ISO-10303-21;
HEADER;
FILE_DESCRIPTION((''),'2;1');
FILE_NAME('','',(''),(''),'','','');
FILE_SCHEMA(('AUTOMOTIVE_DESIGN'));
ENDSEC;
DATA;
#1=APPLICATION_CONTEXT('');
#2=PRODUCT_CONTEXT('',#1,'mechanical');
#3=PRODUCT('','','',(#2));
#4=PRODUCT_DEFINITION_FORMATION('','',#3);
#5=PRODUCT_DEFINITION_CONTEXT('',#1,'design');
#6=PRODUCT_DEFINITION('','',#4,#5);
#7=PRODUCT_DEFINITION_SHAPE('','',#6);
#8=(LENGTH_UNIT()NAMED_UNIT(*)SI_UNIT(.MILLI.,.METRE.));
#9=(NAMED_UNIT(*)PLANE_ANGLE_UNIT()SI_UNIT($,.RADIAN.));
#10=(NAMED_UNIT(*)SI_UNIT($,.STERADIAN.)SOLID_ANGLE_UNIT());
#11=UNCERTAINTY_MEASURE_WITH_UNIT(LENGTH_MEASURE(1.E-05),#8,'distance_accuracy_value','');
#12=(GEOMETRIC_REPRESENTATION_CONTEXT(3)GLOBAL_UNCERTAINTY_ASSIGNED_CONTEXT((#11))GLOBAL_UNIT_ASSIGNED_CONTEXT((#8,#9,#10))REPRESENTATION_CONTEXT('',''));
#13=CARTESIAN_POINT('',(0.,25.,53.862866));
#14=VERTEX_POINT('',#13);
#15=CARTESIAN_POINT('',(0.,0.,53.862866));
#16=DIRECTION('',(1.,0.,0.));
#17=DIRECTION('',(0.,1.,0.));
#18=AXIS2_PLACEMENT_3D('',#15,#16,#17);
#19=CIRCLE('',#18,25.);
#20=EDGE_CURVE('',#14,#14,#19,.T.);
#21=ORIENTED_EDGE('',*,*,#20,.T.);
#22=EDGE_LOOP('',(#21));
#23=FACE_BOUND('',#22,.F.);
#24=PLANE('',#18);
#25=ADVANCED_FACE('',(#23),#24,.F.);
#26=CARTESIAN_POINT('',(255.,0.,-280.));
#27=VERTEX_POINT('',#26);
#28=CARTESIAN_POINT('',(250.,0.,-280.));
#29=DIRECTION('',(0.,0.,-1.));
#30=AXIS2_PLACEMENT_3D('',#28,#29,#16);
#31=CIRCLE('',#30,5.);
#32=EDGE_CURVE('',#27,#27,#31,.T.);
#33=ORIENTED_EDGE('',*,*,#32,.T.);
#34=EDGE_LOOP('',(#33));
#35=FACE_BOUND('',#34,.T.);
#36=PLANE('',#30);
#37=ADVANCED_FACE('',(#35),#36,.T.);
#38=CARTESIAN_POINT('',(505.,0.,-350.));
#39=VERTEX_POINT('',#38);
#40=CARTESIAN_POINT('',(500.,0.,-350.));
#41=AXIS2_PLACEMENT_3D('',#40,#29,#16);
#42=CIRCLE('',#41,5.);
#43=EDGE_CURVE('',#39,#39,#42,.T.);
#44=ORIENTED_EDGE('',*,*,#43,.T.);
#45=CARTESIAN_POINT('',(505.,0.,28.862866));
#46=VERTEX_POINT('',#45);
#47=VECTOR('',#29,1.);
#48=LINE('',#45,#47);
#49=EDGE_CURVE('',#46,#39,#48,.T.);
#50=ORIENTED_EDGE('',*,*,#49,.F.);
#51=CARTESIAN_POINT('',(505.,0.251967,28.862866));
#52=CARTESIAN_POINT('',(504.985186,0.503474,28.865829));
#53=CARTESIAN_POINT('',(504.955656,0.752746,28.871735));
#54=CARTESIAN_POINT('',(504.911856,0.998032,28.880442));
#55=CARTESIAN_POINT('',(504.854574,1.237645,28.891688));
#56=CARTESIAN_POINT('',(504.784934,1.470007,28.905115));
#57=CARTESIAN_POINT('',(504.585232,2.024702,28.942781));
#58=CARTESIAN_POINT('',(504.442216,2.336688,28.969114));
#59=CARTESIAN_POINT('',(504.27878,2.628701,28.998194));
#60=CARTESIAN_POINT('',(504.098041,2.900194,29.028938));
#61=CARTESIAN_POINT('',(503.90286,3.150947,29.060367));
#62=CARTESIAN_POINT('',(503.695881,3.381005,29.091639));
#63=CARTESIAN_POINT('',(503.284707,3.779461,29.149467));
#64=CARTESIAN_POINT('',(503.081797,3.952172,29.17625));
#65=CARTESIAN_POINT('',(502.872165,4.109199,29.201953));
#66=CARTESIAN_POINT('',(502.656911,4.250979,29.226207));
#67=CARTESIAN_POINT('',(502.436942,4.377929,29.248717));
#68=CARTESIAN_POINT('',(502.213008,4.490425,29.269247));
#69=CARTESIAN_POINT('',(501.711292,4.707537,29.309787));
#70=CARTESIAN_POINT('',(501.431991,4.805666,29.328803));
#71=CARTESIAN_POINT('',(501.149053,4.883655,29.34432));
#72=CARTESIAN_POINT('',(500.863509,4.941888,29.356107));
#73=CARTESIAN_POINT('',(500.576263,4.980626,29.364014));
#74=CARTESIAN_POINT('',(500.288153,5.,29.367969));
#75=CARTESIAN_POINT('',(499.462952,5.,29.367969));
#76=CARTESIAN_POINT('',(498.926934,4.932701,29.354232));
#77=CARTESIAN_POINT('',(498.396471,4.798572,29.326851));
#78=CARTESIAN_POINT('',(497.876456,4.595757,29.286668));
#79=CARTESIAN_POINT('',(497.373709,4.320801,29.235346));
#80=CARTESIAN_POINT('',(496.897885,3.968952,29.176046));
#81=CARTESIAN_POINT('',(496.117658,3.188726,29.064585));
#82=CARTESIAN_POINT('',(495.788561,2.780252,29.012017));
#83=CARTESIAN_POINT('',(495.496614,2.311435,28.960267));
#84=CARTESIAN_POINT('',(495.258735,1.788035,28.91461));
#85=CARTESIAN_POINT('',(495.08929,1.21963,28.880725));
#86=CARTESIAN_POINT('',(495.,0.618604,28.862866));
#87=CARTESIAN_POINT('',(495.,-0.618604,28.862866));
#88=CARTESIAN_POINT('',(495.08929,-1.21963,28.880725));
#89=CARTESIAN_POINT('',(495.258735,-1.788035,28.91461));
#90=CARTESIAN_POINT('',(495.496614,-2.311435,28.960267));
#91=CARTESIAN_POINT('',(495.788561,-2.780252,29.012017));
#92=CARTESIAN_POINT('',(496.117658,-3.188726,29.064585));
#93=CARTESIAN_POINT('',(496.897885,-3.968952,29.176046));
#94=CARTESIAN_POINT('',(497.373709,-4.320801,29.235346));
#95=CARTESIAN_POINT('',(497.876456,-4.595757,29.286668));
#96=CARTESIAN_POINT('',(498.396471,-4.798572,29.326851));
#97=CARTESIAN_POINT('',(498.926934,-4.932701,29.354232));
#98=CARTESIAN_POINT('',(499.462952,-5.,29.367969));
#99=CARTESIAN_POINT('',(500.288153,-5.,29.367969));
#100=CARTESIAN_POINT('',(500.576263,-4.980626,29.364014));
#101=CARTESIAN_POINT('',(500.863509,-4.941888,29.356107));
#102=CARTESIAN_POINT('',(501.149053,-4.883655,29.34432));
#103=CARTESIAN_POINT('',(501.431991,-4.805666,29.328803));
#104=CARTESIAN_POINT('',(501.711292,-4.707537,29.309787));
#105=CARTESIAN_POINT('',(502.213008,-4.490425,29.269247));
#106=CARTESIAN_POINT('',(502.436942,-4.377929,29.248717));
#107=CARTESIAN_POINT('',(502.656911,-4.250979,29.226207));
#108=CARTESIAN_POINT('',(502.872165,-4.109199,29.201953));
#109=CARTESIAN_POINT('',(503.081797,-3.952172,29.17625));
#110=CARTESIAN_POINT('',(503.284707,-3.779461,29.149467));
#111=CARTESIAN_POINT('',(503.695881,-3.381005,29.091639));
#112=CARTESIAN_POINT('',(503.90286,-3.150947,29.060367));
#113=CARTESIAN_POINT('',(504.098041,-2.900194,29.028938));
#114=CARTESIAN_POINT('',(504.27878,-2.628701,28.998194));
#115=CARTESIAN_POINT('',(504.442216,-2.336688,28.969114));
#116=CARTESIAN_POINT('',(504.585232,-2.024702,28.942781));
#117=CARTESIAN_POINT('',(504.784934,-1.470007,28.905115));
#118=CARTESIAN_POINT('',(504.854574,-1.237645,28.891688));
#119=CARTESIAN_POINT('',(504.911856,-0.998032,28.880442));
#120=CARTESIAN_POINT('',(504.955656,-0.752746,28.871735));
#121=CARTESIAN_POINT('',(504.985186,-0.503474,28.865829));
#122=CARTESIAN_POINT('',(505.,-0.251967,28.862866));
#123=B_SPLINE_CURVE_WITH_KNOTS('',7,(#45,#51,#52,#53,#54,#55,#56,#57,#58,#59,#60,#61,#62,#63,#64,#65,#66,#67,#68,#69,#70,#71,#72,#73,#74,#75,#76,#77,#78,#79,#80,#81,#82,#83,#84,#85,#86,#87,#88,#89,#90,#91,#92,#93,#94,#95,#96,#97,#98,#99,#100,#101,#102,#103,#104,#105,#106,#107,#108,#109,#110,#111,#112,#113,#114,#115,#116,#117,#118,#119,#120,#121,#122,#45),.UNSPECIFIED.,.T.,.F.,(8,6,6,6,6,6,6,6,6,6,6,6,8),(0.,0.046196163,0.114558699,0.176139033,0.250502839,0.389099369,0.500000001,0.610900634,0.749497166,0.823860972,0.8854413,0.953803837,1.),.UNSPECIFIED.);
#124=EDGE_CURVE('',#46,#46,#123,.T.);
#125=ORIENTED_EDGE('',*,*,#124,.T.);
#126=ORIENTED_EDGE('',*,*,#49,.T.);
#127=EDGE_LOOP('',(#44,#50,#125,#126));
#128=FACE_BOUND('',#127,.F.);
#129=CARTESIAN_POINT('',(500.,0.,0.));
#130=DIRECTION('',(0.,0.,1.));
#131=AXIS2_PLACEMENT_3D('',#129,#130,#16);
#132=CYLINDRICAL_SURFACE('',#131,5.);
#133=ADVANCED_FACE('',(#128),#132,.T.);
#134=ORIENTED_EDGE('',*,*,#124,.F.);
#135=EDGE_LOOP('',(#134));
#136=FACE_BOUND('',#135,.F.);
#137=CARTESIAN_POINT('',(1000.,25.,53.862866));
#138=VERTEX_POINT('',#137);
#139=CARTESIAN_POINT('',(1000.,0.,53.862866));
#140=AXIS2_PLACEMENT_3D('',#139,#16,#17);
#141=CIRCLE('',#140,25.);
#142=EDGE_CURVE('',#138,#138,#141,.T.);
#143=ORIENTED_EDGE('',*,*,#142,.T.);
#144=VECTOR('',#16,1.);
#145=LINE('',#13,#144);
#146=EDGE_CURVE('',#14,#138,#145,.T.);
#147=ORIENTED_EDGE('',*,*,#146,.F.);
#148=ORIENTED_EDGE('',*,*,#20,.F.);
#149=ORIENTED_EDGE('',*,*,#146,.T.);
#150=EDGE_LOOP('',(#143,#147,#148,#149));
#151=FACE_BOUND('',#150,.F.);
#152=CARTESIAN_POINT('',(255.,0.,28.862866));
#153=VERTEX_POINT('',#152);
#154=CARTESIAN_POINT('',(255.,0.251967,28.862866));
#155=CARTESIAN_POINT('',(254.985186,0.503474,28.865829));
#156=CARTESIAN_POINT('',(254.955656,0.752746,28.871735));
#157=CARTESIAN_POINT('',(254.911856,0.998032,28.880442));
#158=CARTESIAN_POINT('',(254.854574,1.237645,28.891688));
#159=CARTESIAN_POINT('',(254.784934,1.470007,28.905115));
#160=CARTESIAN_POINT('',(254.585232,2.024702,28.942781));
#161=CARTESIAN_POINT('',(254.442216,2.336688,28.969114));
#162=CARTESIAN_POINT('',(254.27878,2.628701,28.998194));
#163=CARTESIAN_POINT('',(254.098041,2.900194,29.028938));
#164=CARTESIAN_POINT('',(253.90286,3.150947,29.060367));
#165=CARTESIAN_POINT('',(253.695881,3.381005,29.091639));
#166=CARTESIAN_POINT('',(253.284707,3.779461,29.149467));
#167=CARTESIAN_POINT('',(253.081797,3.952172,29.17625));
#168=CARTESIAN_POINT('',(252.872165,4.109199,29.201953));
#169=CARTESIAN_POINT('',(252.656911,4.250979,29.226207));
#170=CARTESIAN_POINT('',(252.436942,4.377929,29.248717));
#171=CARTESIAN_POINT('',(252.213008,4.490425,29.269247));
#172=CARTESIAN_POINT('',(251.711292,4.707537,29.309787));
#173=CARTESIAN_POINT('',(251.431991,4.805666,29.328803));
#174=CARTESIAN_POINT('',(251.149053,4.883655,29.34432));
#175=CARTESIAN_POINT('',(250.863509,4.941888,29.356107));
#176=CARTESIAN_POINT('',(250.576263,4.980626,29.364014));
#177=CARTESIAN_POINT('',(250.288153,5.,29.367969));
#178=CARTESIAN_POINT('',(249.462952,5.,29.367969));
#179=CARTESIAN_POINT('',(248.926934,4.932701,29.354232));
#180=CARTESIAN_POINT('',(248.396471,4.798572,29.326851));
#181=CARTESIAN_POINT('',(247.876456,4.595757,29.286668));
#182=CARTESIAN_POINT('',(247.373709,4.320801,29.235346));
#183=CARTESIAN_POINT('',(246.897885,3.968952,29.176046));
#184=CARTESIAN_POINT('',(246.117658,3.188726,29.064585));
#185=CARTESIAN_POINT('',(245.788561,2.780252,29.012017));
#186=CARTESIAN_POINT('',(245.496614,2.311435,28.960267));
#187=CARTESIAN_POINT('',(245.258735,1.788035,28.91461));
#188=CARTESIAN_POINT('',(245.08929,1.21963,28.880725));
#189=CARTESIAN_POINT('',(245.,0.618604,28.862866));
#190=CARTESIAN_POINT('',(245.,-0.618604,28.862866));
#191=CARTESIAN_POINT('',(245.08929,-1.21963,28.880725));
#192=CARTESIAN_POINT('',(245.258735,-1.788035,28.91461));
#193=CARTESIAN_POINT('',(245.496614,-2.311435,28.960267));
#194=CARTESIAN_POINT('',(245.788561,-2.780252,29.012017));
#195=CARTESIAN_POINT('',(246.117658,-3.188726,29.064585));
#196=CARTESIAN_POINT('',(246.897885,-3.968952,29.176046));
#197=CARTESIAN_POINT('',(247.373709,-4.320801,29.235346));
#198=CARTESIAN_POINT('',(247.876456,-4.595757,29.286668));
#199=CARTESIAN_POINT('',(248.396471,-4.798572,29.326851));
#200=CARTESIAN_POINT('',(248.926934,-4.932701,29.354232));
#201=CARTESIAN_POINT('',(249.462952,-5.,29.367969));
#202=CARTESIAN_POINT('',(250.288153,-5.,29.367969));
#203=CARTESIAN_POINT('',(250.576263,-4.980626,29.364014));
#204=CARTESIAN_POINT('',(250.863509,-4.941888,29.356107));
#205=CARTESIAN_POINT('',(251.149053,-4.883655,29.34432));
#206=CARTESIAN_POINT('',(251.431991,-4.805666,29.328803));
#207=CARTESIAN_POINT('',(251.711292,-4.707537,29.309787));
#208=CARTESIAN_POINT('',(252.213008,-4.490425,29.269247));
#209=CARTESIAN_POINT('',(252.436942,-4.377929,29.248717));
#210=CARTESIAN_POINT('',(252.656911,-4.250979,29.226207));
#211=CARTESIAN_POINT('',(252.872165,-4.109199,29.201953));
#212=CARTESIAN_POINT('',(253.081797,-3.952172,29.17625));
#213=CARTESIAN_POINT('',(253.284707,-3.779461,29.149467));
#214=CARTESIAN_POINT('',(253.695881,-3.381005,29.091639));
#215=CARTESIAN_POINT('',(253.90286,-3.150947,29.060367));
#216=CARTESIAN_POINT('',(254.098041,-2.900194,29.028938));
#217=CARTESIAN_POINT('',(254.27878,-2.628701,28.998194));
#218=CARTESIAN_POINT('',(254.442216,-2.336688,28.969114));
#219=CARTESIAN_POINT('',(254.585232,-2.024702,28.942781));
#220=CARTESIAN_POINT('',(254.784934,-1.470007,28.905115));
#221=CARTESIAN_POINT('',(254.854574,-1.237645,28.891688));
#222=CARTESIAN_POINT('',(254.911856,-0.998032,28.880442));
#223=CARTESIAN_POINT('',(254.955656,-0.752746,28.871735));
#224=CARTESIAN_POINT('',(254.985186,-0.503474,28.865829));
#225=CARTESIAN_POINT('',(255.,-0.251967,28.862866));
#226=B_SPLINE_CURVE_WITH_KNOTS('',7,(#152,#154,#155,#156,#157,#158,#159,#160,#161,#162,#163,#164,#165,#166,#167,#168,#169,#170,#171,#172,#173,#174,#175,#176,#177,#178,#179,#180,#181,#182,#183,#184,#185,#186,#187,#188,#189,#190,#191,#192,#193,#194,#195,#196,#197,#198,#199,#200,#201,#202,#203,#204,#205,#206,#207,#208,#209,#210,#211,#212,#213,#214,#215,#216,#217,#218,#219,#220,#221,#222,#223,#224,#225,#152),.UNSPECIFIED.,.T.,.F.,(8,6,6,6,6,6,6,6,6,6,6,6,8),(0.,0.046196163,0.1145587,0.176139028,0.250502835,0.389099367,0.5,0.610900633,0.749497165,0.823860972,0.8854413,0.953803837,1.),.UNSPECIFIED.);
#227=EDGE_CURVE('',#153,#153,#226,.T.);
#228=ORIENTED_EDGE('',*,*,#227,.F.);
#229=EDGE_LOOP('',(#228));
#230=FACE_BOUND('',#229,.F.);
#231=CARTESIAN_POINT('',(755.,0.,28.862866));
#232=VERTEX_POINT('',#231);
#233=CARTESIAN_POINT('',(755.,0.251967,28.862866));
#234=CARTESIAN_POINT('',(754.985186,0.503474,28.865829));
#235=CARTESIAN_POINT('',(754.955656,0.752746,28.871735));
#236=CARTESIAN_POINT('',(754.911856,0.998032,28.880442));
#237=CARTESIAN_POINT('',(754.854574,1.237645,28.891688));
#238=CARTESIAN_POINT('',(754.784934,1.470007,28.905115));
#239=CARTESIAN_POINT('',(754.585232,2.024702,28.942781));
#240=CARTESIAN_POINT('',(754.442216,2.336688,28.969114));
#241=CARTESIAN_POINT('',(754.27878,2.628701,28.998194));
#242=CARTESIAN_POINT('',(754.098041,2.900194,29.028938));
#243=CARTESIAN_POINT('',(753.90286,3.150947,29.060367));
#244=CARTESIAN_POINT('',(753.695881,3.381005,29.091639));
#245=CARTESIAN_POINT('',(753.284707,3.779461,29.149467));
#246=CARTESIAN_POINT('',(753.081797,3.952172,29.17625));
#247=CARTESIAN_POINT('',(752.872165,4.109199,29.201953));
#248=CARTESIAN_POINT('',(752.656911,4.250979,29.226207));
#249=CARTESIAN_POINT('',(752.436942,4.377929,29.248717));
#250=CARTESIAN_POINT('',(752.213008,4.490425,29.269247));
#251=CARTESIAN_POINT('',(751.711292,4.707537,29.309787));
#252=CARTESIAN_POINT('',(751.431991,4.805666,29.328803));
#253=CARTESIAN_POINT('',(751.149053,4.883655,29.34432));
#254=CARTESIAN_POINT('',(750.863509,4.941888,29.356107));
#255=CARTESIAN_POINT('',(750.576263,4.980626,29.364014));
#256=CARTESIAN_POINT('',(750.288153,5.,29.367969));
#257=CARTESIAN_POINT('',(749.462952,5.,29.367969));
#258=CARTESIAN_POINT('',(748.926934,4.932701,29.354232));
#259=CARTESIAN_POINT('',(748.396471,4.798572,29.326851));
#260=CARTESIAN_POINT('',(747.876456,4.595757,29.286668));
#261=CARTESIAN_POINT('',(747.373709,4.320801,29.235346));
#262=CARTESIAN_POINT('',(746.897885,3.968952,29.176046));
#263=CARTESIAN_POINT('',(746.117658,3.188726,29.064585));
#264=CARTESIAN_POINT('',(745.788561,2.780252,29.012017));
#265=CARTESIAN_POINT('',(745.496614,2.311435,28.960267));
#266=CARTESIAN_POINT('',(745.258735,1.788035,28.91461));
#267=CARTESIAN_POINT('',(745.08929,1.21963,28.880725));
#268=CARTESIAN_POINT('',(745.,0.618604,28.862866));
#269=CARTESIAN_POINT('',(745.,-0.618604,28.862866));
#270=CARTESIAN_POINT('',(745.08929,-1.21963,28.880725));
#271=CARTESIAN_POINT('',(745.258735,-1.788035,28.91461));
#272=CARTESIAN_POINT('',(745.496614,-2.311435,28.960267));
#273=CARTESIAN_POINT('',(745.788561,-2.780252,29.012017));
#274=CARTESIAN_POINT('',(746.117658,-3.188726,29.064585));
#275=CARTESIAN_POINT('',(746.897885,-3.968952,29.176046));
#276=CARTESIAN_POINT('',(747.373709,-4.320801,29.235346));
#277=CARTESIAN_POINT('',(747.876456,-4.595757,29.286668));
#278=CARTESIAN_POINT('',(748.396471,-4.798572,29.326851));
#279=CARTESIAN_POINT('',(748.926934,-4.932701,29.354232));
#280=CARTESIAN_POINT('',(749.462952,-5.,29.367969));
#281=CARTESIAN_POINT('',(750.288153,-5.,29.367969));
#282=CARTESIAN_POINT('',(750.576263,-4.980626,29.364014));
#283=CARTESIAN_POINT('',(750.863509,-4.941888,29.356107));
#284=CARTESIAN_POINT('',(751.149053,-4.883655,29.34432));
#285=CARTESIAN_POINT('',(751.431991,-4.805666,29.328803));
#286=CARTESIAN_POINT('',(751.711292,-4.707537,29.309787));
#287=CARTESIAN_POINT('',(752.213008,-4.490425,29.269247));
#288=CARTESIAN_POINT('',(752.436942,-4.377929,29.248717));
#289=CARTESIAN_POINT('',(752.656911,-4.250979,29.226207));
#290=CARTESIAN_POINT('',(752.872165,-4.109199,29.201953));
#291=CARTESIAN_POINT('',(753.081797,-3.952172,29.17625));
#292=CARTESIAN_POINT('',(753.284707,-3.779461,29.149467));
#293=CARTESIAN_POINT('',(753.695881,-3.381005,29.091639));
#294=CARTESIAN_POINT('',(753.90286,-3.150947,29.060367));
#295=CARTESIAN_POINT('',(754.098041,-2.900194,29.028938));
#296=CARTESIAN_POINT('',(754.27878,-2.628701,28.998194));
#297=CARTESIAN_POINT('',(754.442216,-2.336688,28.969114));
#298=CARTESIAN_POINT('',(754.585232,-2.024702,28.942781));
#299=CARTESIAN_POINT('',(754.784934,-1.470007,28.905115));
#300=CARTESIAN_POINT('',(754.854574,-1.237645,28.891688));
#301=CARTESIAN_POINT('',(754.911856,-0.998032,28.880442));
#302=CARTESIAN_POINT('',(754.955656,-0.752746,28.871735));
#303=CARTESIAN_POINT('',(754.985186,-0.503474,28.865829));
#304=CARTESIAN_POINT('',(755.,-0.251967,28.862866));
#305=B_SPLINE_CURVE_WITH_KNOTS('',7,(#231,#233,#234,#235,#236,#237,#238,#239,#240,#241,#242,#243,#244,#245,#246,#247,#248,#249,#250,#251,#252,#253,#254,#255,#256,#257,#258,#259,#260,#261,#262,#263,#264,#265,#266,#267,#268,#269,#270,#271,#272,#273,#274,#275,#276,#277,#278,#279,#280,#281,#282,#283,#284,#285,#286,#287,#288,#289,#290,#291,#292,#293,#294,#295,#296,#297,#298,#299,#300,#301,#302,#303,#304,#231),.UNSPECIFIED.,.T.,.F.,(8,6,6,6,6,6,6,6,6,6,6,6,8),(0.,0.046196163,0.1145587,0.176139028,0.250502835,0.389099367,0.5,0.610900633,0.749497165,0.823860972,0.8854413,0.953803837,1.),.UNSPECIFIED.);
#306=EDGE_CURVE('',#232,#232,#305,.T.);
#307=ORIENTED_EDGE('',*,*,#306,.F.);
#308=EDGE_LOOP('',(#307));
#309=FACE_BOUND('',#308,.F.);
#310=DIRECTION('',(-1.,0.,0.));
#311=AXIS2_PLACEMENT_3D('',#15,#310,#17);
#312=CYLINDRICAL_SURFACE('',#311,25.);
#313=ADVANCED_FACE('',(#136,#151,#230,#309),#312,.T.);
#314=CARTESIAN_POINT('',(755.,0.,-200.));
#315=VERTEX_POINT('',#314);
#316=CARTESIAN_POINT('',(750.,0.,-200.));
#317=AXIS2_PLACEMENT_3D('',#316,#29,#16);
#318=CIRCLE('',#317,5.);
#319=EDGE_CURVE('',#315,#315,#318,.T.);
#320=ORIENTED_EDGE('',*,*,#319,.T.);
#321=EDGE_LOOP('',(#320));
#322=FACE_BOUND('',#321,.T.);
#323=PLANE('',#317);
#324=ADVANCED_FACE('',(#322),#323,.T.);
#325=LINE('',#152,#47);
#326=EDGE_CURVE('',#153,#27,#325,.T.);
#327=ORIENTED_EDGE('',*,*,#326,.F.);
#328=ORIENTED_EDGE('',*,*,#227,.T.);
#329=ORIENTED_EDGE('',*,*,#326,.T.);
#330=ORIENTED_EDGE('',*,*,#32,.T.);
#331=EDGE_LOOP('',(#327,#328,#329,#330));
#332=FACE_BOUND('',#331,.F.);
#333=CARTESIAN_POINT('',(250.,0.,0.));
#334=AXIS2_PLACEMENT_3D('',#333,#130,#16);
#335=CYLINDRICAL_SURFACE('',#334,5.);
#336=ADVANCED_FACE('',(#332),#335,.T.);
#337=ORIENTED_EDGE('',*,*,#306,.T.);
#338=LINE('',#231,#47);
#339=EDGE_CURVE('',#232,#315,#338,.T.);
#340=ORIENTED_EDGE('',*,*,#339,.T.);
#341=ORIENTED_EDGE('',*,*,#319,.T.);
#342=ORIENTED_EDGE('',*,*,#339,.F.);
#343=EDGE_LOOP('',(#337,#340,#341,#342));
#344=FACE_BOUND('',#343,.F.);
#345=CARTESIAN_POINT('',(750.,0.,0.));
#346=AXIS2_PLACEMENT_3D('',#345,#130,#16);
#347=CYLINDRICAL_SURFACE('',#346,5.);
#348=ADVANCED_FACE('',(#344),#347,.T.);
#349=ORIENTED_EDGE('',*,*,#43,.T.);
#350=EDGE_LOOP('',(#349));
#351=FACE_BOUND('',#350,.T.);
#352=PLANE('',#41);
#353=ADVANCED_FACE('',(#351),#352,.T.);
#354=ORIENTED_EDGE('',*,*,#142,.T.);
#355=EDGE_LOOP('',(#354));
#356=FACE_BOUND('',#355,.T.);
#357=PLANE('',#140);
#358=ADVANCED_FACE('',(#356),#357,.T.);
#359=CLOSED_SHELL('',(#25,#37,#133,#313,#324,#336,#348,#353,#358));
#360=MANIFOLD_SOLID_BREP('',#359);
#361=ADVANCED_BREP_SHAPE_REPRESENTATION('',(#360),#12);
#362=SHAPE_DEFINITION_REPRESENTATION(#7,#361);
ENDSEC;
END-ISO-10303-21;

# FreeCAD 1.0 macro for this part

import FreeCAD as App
import Part
import Sketcher
from FreeCAD import Vector

doc = App.newDocument("Part")
body = doc.addObject("PartDesign::Body", "Body")

sketch1 = body.newObject("Sketcher::SketchObject", "Sketch")
sketch1.AttachmentSupport = (doc.getObject("YZ_Plane"), [""])
sketch1.MapMode = "FlatFace"
sketch1.addGeometry(Part.Circle(Vector(0, 54, 0), Vector(0, 0, 1), 25), False)
sketch1.addConstraint(Sketcher.Constraint("PointOnObject", 0, 3, -2))
sketch1.addConstraint(Sketcher.Constraint("Diameter", 0, 50.0))
sketch1.addConstraint(Sketcher.Constraint("DistanceY", -1, 1, 0, 3, 53.862866))
pad1 = body.newObject("PartDesign::Pad", "Pad")
pad1.Profile = sketch1
pad1.Length = 1000

sketch2 = body.newObject("Sketcher::SketchObject", "Sketch001")
sketch2.AttachmentSupport = (doc.getObject("XY_Plane"), [""])
sketch2.MapMode = "FlatFace"
sketch2.addGeometry(Part.Circle(Vector(500, 0, 0), Vector(0, 0, 1), 5), False)
sketch2.addGeometry(Part.Circle(Vector(250, 0, 0), Vector(0, 0, 1), 5), False)
sketch2.addGeometry(Part.Circle(Vector(750, 0, 0), Vector(0, 0, 1), 5), False)
sketch2.addConstraint(Sketcher.Constraint("Equal", 0, 1))
sketch2.addConstraint(Sketcher.Constraint("Equal", 1, 2))
sketch2.addConstraint(Sketcher.Constraint("PointOnObject", 0, 3, -1))
sketch2.addConstraint(Sketcher.Constraint("PointOnObject", 1, 3, -1))
sketch2.addConstraint(Sketcher.Constraint("PointOnObject", 2, 3, -1))
sketch2.addConstraint(Sketcher.Constraint("Diameter", 0, 10.0))
sketch2.addConstraint(Sketcher.Constraint("DistanceX", -1, 1, 0, 3, 500.0))
sketch2.addConstraint(Sketcher.Constraint("DistanceX", -1, 1, 1, 3, 250.0))
sketch2.addConstraint(Sketcher.Constraint("DistanceX", -1, 1, 2, 3, 750.0))
pad2 = body.newObject("PartDesign::Pad", "Pad001")
pad2.Profile = sketch2
pad2.Length = 50

sketch3 = body.newObject("Sketcher::SketchObject", "Sketch002")
sketch3.AttachmentSupport = (doc.getObject("XY_Plane"), [""])
sketch3.MapMode = "FlatFace"
sketch3.addGeometry(Part.Circle(Vector(750, 0, 0), Vector(0, 0, 1), 5), False)
sketch3.addConstraint(Sketcher.Constraint("PointOnObject", 0, 3, -1))
sketch3.addConstraint(Sketcher.Constraint("Diameter", 0, 10.0))
sketch3.addConstraint(Sketcher.Constraint("DistanceX", -1, 1, 0, 3, 750.0))
pad3 = body.newObject("PartDesign::Pad", "Pad002")
pad3.Profile = sketch3
pad3.Length = 200
pad3.Reversed = True

sketch4 = body.newObject("Sketcher::SketchObject", "Sketch003")
sketch4.AttachmentSupport = (doc.getObject("XY_Plane"), [""])
sketch4.MapMode = "FlatFace"
sketch4.addGeometry(Part.Circle(Vector(500, 0, 0), Vector(0, 0, 1), 5), False)
sketch4.addConstraint(Sketcher.Constraint("PointOnObject", 0, 3, -1))
sketch4.addConstraint(Sketcher.Constraint("Diameter", 0, 10.0))
sketch4.addConstraint(Sketcher.Constraint("DistanceX", -1, 1, 0, 3, 500.0))
pad4 = body.newObject("PartDesign::Pad", "Pad003")
pad4.Profile = sketch4
pad4.Length = 350
pad4.Reversed = True

sketch5 = body.newObject("Sketcher::SketchObject", "Sketch004")
sketch5.AttachmentSupport = (doc.getObject("XY_Plane"), [""])
sketch5.MapMode = "FlatFace"
sketch5.addGeometry(Part.Circle(Vector(250, 0, 0), Vector(0, 0, 1), 5), False)
sketch5.addConstraint(Sketcher.Constraint("PointOnObject", 0, 3, -1))
sketch5.addConstraint(Sketcher.Constraint("Diameter", 0, 10.0))
sketch5.addConstraint(Sketcher.Constraint("DistanceX", -1, 1, 0, 3, 250.0))
pad5 = body.newObject("PartDesign::Pad", "Pad004")
pad5.Profile = sketch5
pad5.Length = 280
pad5.Reversed = True

doc.recompute()
